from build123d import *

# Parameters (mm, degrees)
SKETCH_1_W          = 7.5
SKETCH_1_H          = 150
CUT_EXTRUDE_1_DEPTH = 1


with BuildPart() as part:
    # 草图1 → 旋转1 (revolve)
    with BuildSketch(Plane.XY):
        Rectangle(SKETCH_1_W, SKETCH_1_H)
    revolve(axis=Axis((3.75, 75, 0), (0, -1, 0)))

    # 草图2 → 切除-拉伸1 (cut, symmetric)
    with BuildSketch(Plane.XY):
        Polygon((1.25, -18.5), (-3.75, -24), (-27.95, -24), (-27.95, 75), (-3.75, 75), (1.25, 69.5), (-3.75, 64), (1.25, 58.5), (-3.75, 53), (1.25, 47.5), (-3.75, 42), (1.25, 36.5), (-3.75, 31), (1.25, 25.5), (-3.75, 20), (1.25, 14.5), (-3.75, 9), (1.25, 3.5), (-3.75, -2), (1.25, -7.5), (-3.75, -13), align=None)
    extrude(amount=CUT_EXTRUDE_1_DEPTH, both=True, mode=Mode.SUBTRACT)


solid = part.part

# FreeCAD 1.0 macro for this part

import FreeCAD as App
import Part
import Sketcher

V = App.Vector
Q = App.Units.Quantity

doc = App.newDocument("Part")
params = doc.addObject("Spreadsheet::Sheet", "Params")
for row, (alias, value) in enumerate([
    ("sketch1_height", "150 mm"),
    ("sketch1_width", "7.5 mm"),
    ("revolution_angle", "360 deg"),
    ("sketch2_height", "99 mm"),
    ("sketch2_width", "24.2 mm"),
    ("pocket1_length", "2 mm"),
], start=1):
    params.set(f"A{row}", alias)
    params.set(f"B{row}", "=" + value)
    params.setAlias(f"B{row}", alias)

body = doc.addObject("PartDesign::Body", "Body")

sketch1 = doc.addObject("Sketcher::SketchObject", "Sketch")
body.addObject(sketch1)
sketch1.AttachmentSupport = (doc.XY_Plane, [""])
sketch1.MapMode = "FlatFace"
sketch1.addGeometry(Part.LineSegment(V(-4, 75, 0), V(-4, -75, 0)), False)
sketch1.addGeometry(Part.LineSegment(V(-4, -75, 0), V(4, -75, 0)), False)
sketch1.addGeometry(Part.LineSegment(V(4, -75, 0), V(4, 75, 0)), False)
sketch1.addGeometry(Part.LineSegment(V(4, 75, 0), V(-4, 75, 0)), False)
sketch1.addGeometry(Part.LineSegment(V(4, 75, 0), V(4, -75, 0)), True)
sketch1.addConstraint(Sketcher.Constraint("Coincident", 0, 2, 1, 1))
sketch1.addConstraint(Sketcher.Constraint("Coincident", 1, 2, 2, 1))
sketch1.addConstraint(Sketcher.Constraint("Coincident", 2, 2, 3, 1))
sketch1.addConstraint(Sketcher.Constraint("Coincident", 3, 2, 0, 1))
sketch1.addConstraint(Sketcher.Constraint("Vertical", 0))
sketch1.addConstraint(Sketcher.Constraint("Horizontal", 1))
sketch1.addConstraint(Sketcher.Constraint("Vertical", 2))
sketch1.addConstraint(Sketcher.Constraint("Horizontal", 3))
sketch1.addConstraint(Sketcher.Constraint("Vertical", 4))
sketch1.addConstraint(Sketcher.Constraint("Coincident", 4, 1, 2, 2))
sketch1.addConstraint(Sketcher.Constraint("Symmetric", 0, 2, 2, 2, -1, 1))
sketch1.addConstraint(Sketcher.Constraint("Horizontal", 0, 2, 4, 2))
sketch1.addConstraint(Sketcher.Constraint("DistanceY", 0, 2, 0, 1, Q("150 mm")))
sketch1.addConstraint(Sketcher.Constraint("DistanceX", 1, 1, 1, 2, Q("7.5 mm")))
sketch1.setExpression("Constraints[12]", "Params.sketch1_height")
sketch1.setExpression("Constraints[13]", "Params.sketch1_width")
revolution = doc.addObject("PartDesign::Revolution", "Revolution")
body.addObject(revolution)
revolution.Profile = sketch1
revolution.ReferenceAxis = (sketch1, ["Axis0"])
revolution.setExpression("Angle", "Params.revolution_angle")

sketch2 = doc.addObject("Sketcher::SketchObject", "Sketch001")
body.addObject(sketch2)
sketch2.AttachmentSupport = (doc.XY_Plane, [""])
sketch2.MapMode = "FlatFace"
sketch2.addGeometry(Part.LineSegment(V(-4, -24, 0), V(1, -18, 0)), False)
sketch2.addGeometry(Part.LineSegment(V(1, -18, 0), V(-4, -13, 0)), False)
sketch2.addGeometry(Part.LineSegment(V(-4, -13, 0), V(1, -8, 0)), False)
sketch2.addGeometry(Part.LineSegment(V(1, -8, 0), V(-4, -2, 0)), False)
sketch2.addGeometry(Part.LineSegment(V(-4, -2, 0), V(1, 4, 0)), False)
sketch2.addGeometry(Part.LineSegment(V(1, 4, 0), V(-4, 9, 0)), False)
sketch2.addGeometry(Part.LineSegment(V(-4, 9, 0), V(1, 14, 0)), False)
sketch2.addGeometry(Part.LineSegment(V(1, 14, 0), V(-4, 20, 0)), False)
sketch2.addGeometry(Part.LineSegment(V(-4, 20, 0), V(1, 26, 0)), False)
sketch2.addGeometry(Part.LineSegment(V(1, 26, 0), V(-4, 31, 0)), False)
sketch2.addGeometry(Part.LineSegment(V(-4, 31, 0), V(1, 36, 0)), False)
sketch2.addGeometry(Part.LineSegment(V(1, 36, 0), V(-4, 42, 0)), False)
sketch2.addGeometry(Part.LineSegment(V(-4, 42, 0), V(1, 48, 0)), False)
sketch2.addGeometry(Part.LineSegment(V(1, 48, 0), V(-4, 53, 0)), False)
sketch2.addGeometry(Part.LineSegment(V(-4, 53, 0), V(1, 58, 0)), False)
sketch2.addGeometry(Part.LineSegment(V(1, 58, 0), V(-4, 64, 0)), False)
sketch2.addGeometry(Part.LineSegment(V(-4, 64, 0), V(1, 70, 0)), False)
sketch2.addGeometry(Part.LineSegment(V(1, 70, 0), V(-4, 75, 0)), False)
sketch2.addGeometry(Part.LineSegment(V(-4, 75, 0), V(-28, 75, 0)), False)
sketch2.addGeometry(Part.LineSegment(V(-28, 75, 0), V(-28, -24, 0)), False)
sketch2.addGeometry(Part.LineSegment(V(-28, -24, 0), V(-4, -24, 0)), False)
sketch2.addConstraint(Sketcher.Constraint("Coincident", 0, 2, 1, 1))
sketch2.addConstraint(Sketcher.Constraint("Coincident", 1, 2, 2, 1))
sketch2.addConstraint(Sketcher.Constraint("Coincident", 2, 2, 3, 1))
sketch2.addConstraint(Sketcher.Constraint("Coincident", 3, 2, 4, 1))
sketch2.addConstraint(Sketcher.Constraint("Coincident", 4, 2, 5, 1))
sketch2.addConstraint(Sketcher.Constraint("Coincident", 5, 2, 6, 1))
sketch2.addConstraint(Sketcher.Constraint("Coincident", 6, 2, 7, 1))
sketch2.addConstraint(Sketcher.Constraint("Coincident", 7, 2, 8, 1))
sketch2.addConstraint(Sketcher.Constraint("Coincident", 8, 2, 9, 1))
sketch2.addConstraint(Sketcher.Constraint("Coincident", 9, 2, 10, 1))
sketch2.addConstraint(Sketcher.Constraint("Coincident", 10, 2, 11, 1))
sketch2.addConstraint(Sketcher.Constraint("Coincident", 11, 2, 12, 1))
sketch2.addConstraint(Sketcher.Constraint("Coincident", 12, 2, 13, 1))
sketch2.addConstraint(Sketcher.Constraint("Coincident", 13, 2, 14, 1))
sketch2.addConstraint(Sketcher.Constraint("Coincident", 14, 2, 15, 1))
sketch2.addConstraint(Sketcher.Constraint("Coincident", 15, 2, 16, 1))
sketch2.addConstraint(Sketcher.Constraint("Coincident", 16, 2, 17, 1))
sketch2.addConstraint(Sketcher.Constraint("Coincident", 17, 2, 18, 1))
sketch2.addConstraint(Sketcher.Constraint("Coincident", 18, 2, 19, 1))
sketch2.addConstraint(Sketcher.Constraint("Coincident", 19, 2, 20, 1))
sketch2.addConstraint(Sketcher.Constraint("Coincident", 20, 2, 0, 1))
sketch2.addConstraint(Sketcher.Constraint("Horizontal", 18))
sketch2.addConstraint(Sketcher.Constraint("Vertical", 19))
sketch2.addConstraint(Sketcher.Constraint("Horizontal", 20))
sketch2.addConstraint(Sketcher.Constraint("Parallel", 0, 2))
sketch2.addConstraint(Sketcher.Constraint("Parallel", 1, 3))
sketch2.addConstraint(Sketcher.Constraint("Parallel", 2, 4))
sketch2.addConstraint(Sketcher.Constraint("Parallel", 3, 5))
sketch2.addConstraint(Sketcher.Constraint("Parallel", 4, 6))
sketch2.addConstraint(Sketcher.Constraint("Parallel", 5, 7))
sketch2.addConstraint(Sketcher.Constraint("Parallel", 6, 8))
sketch2.addConstraint(Sketcher.Constraint("Parallel", 7, 9))
sketch2.addConstraint(Sketcher.Constraint("Parallel", 8, 10))
sketch2.addConstraint(Sketcher.Constraint("Parallel", 9, 11))
sketch2.addConstraint(Sketcher.Constraint("Parallel", 10, 12))
sketch2.addConstraint(Sketcher.Constraint("Parallel", 11, 13))
sketch2.addConstraint(Sketcher.Constraint("Parallel", 12, 14))
sketch2.addConstraint(Sketcher.Constraint("Parallel", 13, 15))
sketch2.addConstraint(Sketcher.Constraint("Parallel", 14, 16))
sketch2.addConstraint(Sketcher.Constraint("Parallel", 15, 17))
sketch2.addConstraint(Sketcher.Constraint("Vertical", 0, 2, 2, 2))
sketch2.addConstraint(Sketcher.Constraint("Vertical", 1, 2, 3, 2))
sketch2.addConstraint(Sketcher.Constraint("Vertical", 2, 2, 4, 2))
sketch2.addConstraint(Sketcher.Constraint("Vertical", 3, 2, 5, 2))
sketch2.addConstraint(Sketcher.Constraint("Vertical", 4, 2, 6, 2))
sketch2.addConstraint(Sketcher.Constraint("Vertical", 5, 2, 7, 2))
sketch2.addConstraint(Sketcher.Constraint("Vertical", 6, 2, 8, 2))
sketch2.addConstraint(Sketcher.Constraint("Vertical", 7, 2, 9, 2))
sketch2.addConstraint(Sketcher.Constraint("Vertical", 8, 2, 10, 2))
sketch2.addConstraint(Sketcher.Constraint("Vertical", 9, 2, 11, 2))
sketch2.addConstraint(Sketcher.Constraint("Vertical", 10, 2, 12, 2))
sketch2.addConstraint(Sketcher.Constraint("Vertical", 11, 2, 13, 2))
sketch2.addConstraint(Sketcher.Constraint("Vertical", 12, 2, 14, 2))
sketch2.addConstraint(Sketcher.Constraint("Vertical", 13, 2, 15, 2))
sketch2.addConstraint(Sketcher.Constraint("Vertical", 14, 2, 16, 2))
sketch2.addConstraint(Sketcher.Constraint("Vertical", 15, 2, 17, 2))
sketch2.addConstraint(Sketcher.Constraint("Vertical", 17, 2, 20, 2))
sketch2.addConstraint(Sketcher.Constraint("Equal", 0, 1))
sketch2.addConstraint(Sketcher.Constraint("DistanceY", 19, 2, 19, 1, Q("99 mm")))
sketch2.addConstraint(Sketcher.Constraint("DistanceX", 18, 2, 18, 1, Q("24.2 mm")))
sketch2.addConstraint(Sketcher.Constraint("DistanceY", 1, 2, -1, 1, Q("13 mm")))
sketch2.addConstraint(Sketcher.Constraint("DistanceX", 1, 2, 0, 2, Q("5 mm")))
sketch2.addConstraint(Sketcher.Constraint("DistanceX", -1, 1, 0, 2, Q("1.25 mm")))
sketch2.setExpression("Constraints[58]", "Params.sketch2_height")
sketch2.setExpression("Constraints[59]", "Params.sketch2_width")
pocket1 = doc.addObject("PartDesign::Pocket", "Pocket")
body.addObject(pocket1)
pocket1.Profile = sketch2
pocket1.setExpression("Length", "Params.pocket1_length")
pocket1.Midplane = True

doc.recompute()
